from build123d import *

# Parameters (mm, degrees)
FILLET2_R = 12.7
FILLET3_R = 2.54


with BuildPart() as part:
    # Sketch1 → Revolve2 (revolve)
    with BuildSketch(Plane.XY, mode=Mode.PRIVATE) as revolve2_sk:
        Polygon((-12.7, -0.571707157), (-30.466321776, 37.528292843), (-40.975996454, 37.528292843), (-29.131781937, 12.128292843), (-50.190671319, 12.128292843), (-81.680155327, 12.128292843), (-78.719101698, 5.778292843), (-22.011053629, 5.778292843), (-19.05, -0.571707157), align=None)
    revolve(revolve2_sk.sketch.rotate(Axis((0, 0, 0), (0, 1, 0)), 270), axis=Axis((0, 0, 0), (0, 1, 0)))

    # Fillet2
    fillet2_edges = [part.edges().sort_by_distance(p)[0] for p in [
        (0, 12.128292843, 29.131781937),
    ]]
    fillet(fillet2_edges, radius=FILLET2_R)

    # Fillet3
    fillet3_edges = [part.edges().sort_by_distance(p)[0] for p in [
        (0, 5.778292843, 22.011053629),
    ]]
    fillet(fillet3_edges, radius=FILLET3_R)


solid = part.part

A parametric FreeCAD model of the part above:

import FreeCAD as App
import Part
import Sketcher
Q = App.Units.Quantity


def edges_at(feature, points):
    """Names of the edges that pass closest to the given points."""
    edges = feature.Shape.Edges
    near = lambda p: min(range(len(edges)), key=lambda i: edges[i].distToShape(Part.Vertex(*p))[0])
    return sorted({f"Edge{near(p) + 1}" for p in points})


def add_polygon(sketch, points):
    """Adds a closed chain of lines whose ends are joined by coincident constraints."""
    first, n = sketch.GeometryCount, len(points)
    for a, b in zip(points, points[1:] + points[:1]):
        sketch.addGeometry(Part.LineSegment(App.Vector(*a, 0), App.Vector(*b, 0)), False)
    for i in range(n):
        sketch.addConstraint(Sketcher.Constraint("Coincident", first + i, 2, first + (i + 1) % n, 1))

doc = App.newDocument("Part")
params = doc.addObject("Spreadsheet::Sheet", "Params")
for row, (alias, value) in enumerate([
    ("sketch1_width", "0.25 in"),
    ("revolution_angle", "360 deg"),
    ("fillet_radius", "0.5 in"),
    ("fillet2_radius", "0.1 in"),
], start=1):
    params.set(f"A{row}", alias)
    params.set(f"B{row}", "=" + value)
    params.setAlias(f"B{row}", alias)

body = doc.addObject("PartDesign::Body", "Body")

# Sketch on XY plane
sketch1 = doc.addObject("Sketcher::SketchObject", "Sketch")
body.addObject(sketch1)
sketch1.AttachmentSupport = (doc.XY_Plane, [""])
sketch1.MapMode = "FlatFace"
add_polygon(sketch1, [(-13, -1), (-30, 38), (-41, 38), (-29, 12), (-82, 12), (-79, 6), (-22, 6), (-19, -1)])  # lines 0-7
sketch1.addConstraint(Sketcher.Constraint("Horizontal", 1))
sketch1.addConstraint(Sketcher.Constraint("Horizontal", 3))
sketch1.addConstraint(Sketcher.Constraint("Horizontal", 5))
sketch1.addConstraint(Sketcher.Constraint("Horizontal", 7))
sketch1.addConstraint(Sketcher.Constraint("Parallel", 0, 2))
sketch1.addConstraint(Sketcher.Constraint("Parallel", 2, 4))
sketch1.addConstraint(Sketcher.Constraint("Parallel", 4, 6))
sketch1.addConstraint(Sketcher.Constraint("Equal", 4, 6))
sketch1.addConstraint(Sketcher.Constraint("Angle", 0, Q("115 deg")))
sketch1.addConstraint(Sketcher.Constraint("DistanceY", 2, 2, 0, 2, Q("1 in")))
sketch1.addConstraint(Sketcher.Constraint("DistanceX", 7, 1, 7, 2, Q("0.25 in")))
sketch1.addConstraint(Sketcher.Constraint("DistanceX", 7, 2, -1, 1, Q("0.5 in")))
sketch1.addConstraint(Sketcher.Constraint("DistanceY", 6, 2, 2, 2, Q("0.5 in")))
sketch1.addConstraint(Sketcher.Constraint("DistanceX", 5, 1, 5, 2, Q("56.708048 mm")))
sketch1.addConstraint(Sketcher.Constraint("DistanceX", 1, 2, 1, 1, Q("10.509675 mm")))
sketch1.addConstraint(Sketcher.Constraint("DistanceY", -1, 1, 0, 2, Q("37.528293 mm")))
sketch1.setExpression("Constraints[18]", "Params.sketch1_width")
revolution = doc.addObject("PartDesign::Revolution", "Revolution")
body.addObject(revolution)
revolution.Profile = sketch1
revolution.ReferenceAxis = (sketch1, ["V_Axis"])
revolution.setExpression("Angle", "Params.revolution_angle")
doc.recompute()

fillet = doc.addObject("PartDesign::Fillet", "Fillet")
body.addObject(fillet)
fillet.Base = (revolution, edges_at(revolution, [(0, 12.128, 29.132)]))
fillet.setExpression("Radius", "Params.fillet_radius")
doc.recompute()

fillet2 = doc.addObject("PartDesign::Fillet", "Fillet001")
body.addObject(fillet2)
fillet2.Base = (fillet, edges_at(fillet, [(0, 5.778, 22.011)]))
fillet2.setExpression("Radius", "Params.fillet2_radius")

doc.recompute()
